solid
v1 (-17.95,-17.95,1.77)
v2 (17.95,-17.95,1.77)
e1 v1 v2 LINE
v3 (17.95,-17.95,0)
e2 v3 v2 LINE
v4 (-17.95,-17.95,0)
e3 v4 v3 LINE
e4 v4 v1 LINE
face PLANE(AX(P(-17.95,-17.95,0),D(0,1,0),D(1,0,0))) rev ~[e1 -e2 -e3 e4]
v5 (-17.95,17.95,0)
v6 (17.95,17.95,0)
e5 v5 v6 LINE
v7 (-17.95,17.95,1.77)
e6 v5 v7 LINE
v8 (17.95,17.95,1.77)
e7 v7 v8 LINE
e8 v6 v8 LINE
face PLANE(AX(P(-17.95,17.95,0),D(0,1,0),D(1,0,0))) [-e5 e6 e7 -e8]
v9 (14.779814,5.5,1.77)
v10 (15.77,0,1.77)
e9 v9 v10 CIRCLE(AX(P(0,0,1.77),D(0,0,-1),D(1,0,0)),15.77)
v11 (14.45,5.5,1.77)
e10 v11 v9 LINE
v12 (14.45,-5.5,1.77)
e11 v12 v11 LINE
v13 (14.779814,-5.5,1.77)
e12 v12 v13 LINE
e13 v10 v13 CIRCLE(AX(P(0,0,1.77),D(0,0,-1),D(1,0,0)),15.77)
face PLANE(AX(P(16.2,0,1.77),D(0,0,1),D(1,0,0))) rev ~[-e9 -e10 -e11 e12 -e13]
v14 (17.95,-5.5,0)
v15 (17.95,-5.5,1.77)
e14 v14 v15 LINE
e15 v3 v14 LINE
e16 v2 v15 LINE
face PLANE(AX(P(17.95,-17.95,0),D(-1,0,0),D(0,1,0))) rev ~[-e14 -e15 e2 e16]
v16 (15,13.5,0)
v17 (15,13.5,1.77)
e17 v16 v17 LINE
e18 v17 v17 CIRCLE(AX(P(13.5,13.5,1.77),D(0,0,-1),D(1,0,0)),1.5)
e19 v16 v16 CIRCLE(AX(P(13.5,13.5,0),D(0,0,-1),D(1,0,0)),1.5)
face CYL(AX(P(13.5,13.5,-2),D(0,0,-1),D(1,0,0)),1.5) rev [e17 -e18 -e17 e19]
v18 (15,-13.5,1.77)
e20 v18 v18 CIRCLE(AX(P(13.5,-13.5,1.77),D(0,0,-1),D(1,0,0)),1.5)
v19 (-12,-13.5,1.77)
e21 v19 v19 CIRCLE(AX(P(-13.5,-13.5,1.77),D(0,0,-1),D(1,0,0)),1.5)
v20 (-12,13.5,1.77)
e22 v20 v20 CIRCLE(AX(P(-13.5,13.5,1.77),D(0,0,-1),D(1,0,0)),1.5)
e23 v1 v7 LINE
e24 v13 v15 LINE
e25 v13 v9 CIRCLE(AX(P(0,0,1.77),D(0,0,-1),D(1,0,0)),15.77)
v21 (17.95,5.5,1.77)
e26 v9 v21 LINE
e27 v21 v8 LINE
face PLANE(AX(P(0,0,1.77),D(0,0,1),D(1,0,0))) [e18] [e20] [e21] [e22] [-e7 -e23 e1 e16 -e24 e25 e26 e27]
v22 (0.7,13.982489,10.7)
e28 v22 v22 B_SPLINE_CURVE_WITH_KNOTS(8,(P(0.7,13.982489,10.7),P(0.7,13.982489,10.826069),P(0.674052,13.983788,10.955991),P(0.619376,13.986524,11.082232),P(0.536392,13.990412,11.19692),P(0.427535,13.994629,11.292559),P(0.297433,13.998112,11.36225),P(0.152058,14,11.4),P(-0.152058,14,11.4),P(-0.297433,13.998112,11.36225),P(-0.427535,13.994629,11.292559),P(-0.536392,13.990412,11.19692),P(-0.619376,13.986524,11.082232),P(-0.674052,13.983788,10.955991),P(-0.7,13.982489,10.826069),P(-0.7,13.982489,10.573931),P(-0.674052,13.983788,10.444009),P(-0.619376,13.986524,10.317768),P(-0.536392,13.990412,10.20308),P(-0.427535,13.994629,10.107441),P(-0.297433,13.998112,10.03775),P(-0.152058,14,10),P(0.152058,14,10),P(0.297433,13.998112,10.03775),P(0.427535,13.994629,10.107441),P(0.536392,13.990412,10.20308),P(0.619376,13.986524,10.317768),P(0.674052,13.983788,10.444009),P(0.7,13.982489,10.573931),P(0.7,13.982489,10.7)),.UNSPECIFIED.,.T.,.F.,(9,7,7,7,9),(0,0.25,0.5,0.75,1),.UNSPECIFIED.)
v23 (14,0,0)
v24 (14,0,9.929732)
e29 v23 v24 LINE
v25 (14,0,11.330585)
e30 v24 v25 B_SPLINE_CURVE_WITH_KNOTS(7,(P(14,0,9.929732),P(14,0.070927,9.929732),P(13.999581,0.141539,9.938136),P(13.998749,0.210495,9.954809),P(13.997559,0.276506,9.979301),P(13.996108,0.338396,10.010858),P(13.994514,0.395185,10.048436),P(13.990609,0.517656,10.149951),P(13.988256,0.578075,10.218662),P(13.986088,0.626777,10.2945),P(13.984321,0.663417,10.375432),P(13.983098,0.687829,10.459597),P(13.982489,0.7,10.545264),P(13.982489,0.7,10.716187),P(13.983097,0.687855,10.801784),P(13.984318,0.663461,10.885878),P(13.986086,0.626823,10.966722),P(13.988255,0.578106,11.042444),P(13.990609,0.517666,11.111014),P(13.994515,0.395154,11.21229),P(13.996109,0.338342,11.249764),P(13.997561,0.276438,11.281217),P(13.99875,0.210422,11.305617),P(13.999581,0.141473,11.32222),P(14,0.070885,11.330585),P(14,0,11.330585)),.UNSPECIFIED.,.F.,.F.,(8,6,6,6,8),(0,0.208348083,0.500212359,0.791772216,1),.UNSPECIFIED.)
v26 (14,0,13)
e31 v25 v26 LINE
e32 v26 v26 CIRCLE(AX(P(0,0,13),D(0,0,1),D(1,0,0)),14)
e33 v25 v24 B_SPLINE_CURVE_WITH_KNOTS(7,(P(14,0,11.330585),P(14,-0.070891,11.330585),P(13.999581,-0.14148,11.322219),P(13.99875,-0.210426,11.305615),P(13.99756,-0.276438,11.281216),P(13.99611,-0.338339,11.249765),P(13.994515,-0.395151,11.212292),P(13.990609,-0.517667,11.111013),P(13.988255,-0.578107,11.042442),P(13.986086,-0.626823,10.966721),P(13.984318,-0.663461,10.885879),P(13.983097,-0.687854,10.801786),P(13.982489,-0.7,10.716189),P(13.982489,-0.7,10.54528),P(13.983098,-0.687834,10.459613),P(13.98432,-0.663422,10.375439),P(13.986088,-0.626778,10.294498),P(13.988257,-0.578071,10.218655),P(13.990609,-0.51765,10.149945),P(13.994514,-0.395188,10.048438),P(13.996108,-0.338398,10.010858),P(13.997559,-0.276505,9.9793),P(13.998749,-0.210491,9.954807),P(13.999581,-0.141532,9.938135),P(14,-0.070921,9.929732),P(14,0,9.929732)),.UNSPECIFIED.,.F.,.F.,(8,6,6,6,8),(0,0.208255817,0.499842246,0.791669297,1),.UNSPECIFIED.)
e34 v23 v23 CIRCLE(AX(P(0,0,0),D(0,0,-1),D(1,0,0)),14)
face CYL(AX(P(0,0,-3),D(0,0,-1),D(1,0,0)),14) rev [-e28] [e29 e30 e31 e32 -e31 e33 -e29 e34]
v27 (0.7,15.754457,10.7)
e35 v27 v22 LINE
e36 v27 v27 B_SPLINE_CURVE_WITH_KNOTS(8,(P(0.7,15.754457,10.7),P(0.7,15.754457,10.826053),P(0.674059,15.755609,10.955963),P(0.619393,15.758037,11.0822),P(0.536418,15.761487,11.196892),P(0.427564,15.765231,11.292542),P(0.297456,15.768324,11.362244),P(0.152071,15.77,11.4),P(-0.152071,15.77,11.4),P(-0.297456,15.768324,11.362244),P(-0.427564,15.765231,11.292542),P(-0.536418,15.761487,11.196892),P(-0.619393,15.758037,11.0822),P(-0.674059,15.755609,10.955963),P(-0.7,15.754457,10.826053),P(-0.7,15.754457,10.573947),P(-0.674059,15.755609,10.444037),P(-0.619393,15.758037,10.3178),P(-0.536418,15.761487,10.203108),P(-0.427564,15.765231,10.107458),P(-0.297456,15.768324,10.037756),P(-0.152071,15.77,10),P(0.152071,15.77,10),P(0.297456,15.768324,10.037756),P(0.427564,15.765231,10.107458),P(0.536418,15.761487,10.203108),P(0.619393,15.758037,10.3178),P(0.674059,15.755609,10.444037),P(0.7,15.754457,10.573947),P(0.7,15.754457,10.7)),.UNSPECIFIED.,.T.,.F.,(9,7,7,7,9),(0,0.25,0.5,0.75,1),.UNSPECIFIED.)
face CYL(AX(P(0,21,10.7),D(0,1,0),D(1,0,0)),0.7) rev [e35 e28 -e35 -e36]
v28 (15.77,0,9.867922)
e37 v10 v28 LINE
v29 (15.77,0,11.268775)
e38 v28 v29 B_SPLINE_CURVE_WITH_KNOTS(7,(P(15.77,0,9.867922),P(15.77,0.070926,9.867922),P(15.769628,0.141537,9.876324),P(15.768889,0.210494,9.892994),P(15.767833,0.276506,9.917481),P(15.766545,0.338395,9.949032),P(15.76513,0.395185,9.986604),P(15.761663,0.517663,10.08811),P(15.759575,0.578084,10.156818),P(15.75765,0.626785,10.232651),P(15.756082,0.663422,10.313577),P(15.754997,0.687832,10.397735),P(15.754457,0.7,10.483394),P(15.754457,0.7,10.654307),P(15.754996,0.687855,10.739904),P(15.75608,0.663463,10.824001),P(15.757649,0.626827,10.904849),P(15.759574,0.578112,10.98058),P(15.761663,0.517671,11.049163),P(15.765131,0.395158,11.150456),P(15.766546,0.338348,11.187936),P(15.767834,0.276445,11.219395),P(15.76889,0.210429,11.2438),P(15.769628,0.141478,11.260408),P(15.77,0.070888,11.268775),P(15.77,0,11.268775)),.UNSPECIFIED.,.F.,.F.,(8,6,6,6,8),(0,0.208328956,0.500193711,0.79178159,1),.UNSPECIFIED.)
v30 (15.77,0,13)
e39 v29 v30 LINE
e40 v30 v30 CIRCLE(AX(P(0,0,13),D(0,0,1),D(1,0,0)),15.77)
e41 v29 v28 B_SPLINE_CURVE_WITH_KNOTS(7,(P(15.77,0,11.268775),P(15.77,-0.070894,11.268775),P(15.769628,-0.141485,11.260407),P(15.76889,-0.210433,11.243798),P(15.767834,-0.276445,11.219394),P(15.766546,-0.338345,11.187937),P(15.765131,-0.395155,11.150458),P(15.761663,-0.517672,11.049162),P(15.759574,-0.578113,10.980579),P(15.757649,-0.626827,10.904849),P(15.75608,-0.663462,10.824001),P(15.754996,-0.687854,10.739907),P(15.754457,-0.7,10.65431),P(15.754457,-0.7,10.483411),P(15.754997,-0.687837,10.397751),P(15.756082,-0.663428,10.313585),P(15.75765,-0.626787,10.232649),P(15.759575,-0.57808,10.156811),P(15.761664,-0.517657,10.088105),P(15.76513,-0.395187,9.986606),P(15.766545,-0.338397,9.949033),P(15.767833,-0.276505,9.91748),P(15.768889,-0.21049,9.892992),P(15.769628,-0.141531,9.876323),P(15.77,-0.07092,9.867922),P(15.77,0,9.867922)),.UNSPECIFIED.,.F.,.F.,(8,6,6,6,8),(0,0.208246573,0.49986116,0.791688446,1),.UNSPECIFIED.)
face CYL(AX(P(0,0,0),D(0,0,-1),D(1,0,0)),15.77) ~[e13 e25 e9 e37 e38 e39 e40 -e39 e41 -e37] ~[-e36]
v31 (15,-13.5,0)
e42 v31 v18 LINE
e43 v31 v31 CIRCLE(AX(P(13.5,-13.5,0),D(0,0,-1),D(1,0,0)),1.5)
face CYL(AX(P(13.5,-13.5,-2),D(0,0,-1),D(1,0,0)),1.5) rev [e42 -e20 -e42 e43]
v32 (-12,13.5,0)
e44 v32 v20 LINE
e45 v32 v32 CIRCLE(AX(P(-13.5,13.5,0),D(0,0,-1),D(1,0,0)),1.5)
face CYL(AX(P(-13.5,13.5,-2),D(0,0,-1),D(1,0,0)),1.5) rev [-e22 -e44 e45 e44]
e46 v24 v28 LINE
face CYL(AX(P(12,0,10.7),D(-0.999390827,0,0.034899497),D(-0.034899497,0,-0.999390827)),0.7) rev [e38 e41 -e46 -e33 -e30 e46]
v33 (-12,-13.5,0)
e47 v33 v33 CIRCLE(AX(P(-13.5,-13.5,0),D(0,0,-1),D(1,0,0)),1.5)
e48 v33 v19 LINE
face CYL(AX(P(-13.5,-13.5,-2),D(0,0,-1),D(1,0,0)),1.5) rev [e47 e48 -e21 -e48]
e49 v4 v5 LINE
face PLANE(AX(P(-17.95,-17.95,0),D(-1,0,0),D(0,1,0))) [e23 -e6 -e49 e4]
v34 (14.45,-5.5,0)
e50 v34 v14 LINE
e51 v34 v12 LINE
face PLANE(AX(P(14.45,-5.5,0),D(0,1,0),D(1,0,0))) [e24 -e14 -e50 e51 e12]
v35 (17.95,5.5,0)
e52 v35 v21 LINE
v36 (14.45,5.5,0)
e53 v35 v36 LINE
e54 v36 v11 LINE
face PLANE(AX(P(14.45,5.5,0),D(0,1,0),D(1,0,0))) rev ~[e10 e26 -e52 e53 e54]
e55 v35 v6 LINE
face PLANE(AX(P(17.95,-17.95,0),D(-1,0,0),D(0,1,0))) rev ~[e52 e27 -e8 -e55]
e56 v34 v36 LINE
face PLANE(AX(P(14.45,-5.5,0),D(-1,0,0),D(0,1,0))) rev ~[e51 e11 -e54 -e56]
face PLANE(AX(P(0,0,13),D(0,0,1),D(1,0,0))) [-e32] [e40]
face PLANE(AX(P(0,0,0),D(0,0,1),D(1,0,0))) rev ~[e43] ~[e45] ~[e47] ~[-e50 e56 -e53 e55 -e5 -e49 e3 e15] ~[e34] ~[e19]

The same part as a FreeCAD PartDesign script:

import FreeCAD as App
import Part
import Sketcher
Q = App.Units.Quantity


def faces_at(feature, points):
    """Names of the faces that lie closest to the given points."""
    faces = feature.Shape.Faces
    near = lambda p: min(range(len(faces)), key=lambda i: faces[i].distToShape(Part.Vertex(*p))[0])
    return sorted({f"Face{near(p) + 1}" for p in points})

doc = App.newDocument("Part")
body = doc.addObject("PartDesign::Body", "Body")

sketch1 = body.newObject("Sketcher::SketchObject", "Sketch")
sketch1.AttachmentSupport = (doc.getObject("XY_Plane"), [""])
sketch1.MapMode = "FlatFace"
sketch1.addGeometry(Part.LineSegment(App.Vector(14.4, 5.5, 0), App.Vector(14.4, -5.5, 0)), False)
sketch1.addGeometry(Part.LineSegment(App.Vector(14.4, -5.5, 0), App.Vector(17.9, -5.5, 0)), False)
sketch1.addGeometry(Part.LineSegment(App.Vector(17.9, -5.5, 0), App.Vector(17.9, 5.5, 0)), False)
sketch1.addGeometry(Part.LineSegment(App.Vector(17.9, 5.5, 0), App.Vector(14.4, 5.5, 0)), False)
sketch1.addConstraint(Sketcher.Constraint("Coincident", 0, 2, 1, 1))
sketch1.addConstraint(Sketcher.Constraint("Coincident", 1, 2, 2, 1))
sketch1.addConstraint(Sketcher.Constraint("Coincident", 2, 2, 3, 1))
sketch1.addConstraint(Sketcher.Constraint("Coincident", 3, 2, 0, 1))
sketch1.addConstraint(Sketcher.Constraint("Vertical", 0))
sketch1.addConstraint(Sketcher.Constraint("Horizontal", 1))
sketch1.addConstraint(Sketcher.Constraint("Vertical", 2))
sketch1.addConstraint(Sketcher.Constraint("Horizontal", 3))
sketch1.addConstraint(Sketcher.Constraint("DistanceY", 0, 2, 0, 1, Q("11 mm")))
sketch1.addConstraint(Sketcher.Constraint("DistanceX", 1, 1, 1, 2, Q("3.5 mm")))
sketch1.addConstraint(Sketcher.Constraint("DistanceY", 0, 2, -1, 1, Q("5.5 mm")))
sketch1.addConstraint(Sketcher.Constraint("DistanceX", -1, 1, 0, 2, Q("14.45 mm")))
pad1 = body.newObject("PartDesign::Pad", "Pad")
pad1.Profile = sketch1
pad1.Length = 1.77
body2 = doc.addObject("PartDesign::Body", "Body001")

sketch2 = body2.newObject("Sketcher::SketchObject", "Sketch001")
sketch2.AttachmentSupport = (doc.getObject("XY_Plane001"), [""])
sketch2.MapMode = "FlatFace"
sketch2.addGeometry(Part.Circle(App.Vector(0, 0, 0), App.Vector(0, 0, 1), 0.7), False)
sketch2.addConstraint(Sketcher.Constraint("Coincident", 0, 3, -1, 1))
sketch2.addConstraint(Sketcher.Constraint("Diameter", 0, Q("1.4 mm")))
pad2 = body2.newObject("PartDesign::Pad", "Pad001")
pad2.Profile = sketch2
pad2.Length = 10
body3 = doc.addObject("PartDesign::Body", "Body002")
doc.recompute()

body2.Placement = App.Placement(App.Vector(12, 0, 10.7), App.Rotation(App.Vector(0, 1, 0), 92))
boolean = body3.newObject("PartDesign::Boolean", "Boolean")
boolean.Type = "Fuse"
boolean.addObjects([body2])
body4 = doc.addObject("PartDesign::Body", "Body003")

sketch3 = body4.newObject("Sketcher::SketchObject", "Sketch002")
sketch3.AttachmentSupport = (doc.getObject("XY_Plane003"), [""])
sketch3.MapMode = "FlatFace"
sketch3.addGeometry(Part.Circle(App.Vector(0, 0, 0), App.Vector(0, 0, 1), 0.7), False)
sketch3.addConstraint(Sketcher.Constraint("Coincident", 0, 3, -1, 1))
sketch3.addConstraint(Sketcher.Constraint("Diameter", 0, Q("1.4 mm")))
pad3 = body4.newObject("PartDesign::Pad", "Pad002")
pad3.Profile = sketch3
pad3.Length = 10
body5 = doc.addObject("PartDesign::Body", "Body004")
doc.recompute()

body4.Placement = App.Placement(App.Vector(0, 0, 0), App.Rotation(App.Vector(1, 0, 0), 90))
boolean2 = body5.newObject("PartDesign::Boolean", "Boolean001")
boolean2.Type = "Fuse"
boolean2.addObjects([body4])
body6 = doc.addObject("PartDesign::Body", "Body005")
doc.recompute()

body5.Placement = App.Placement(App.Vector(0, 21, 10.7), App.Rotation(App.Vector(0, 0, 1), 0))
boolean3 = body6.newObject("PartDesign::Boolean", "Boolean002")
boolean3.Type = "Fuse"
boolean3.addObjects([body5])
body7 = doc.addObject("PartDesign::Body", "Body006")

sketch4 = body7.newObject("Sketcher::SketchObject", "Sketch003")
sketch4.AttachmentSupport = (doc.getObject("XY_Plane006"), [""])
sketch4.MapMode = "FlatFace"
sketch4.addGeometry(Part.Circle(App.Vector(0, 0, 0), App.Vector(0, 0, 1), 14), False)
sketch4.addConstraint(Sketcher.Constraint("Coincident", 0, 3, -1, 1))
sketch4.addConstraint(Sketcher.Constraint("Diameter", 0, Q("28 mm")))
pad4 = body7.newObject("PartDesign::Pad", "Pad003")
pad4.Profile = sketch4
pad4.Length = 13
doc.recompute()

thickness = body7.newObject("PartDesign::Thickness", "Thickness")
thickness.Base = (pad4, faces_at(pad4, [(0, 0, 13), (0, 0, 0)]))
thickness.Value = 1.77
thickness.Reversed = False
thickness.Join = "Arc"
doc.recompute()

boolean4 = body7.newObject("PartDesign::Boolean", "Boolean003")
boolean4.Type = "Cut"
boolean4.addObjects([body6])
doc.recompute()

boolean5 = body7.newObject("PartDesign::Boolean", "Boolean004")
boolean5.Type = "Cut"
boolean5.addObjects([body3])
doc.recompute()

body8 = doc.addObject("PartDesign::Body", "Body007")
body8.BaseFeature = body
boolean6 = body7.newObject("PartDesign::Boolean", "Boolean005")
boolean6.Type = "Cut"
boolean6.addObjects([body8])
doc.recompute()
body9 = doc.addObject("PartDesign::Body", "Body008")

sketch5 = body9.newObject("Sketcher::SketchObject", "Sketch004")
sketch5.AttachmentSupport = (doc.getObject("XY_Plane008"), [""])
sketch5.MapMode = "FlatFace"
sketch5.AttachmentOffset = App.Placement(App.Vector(0, 0, -2), App.Rotation())
sketch5.addGeometry(Part.Circle(App.Vector(13.5, 13.5, 0), App.Vector(0, 0, 1), 1.5), False)
sketch5.addConstraint(Sketcher.Constraint("Diameter", 0, Q("3 mm")))
sketch5.addConstraint(Sketcher.Constraint("DistanceX", -1, 1, 0, 3, Q("13.5 mm")))
sketch5.addConstraint(Sketcher.Constraint("DistanceY", -1, 1, 0, 3, Q("13.5 mm")))
pad5 = body9.newObject("PartDesign::Pad", "Pad004")
pad5.Profile = sketch5
pad5.Length = 10
body10 = doc.addObject("PartDesign::Body", "Body009")

sketch6 = body10.newObject("Sketcher::SketchObject", "Sketch005")
sketch6.AttachmentSupport = (doc.getObject("XY_Plane009"), [""])
sketch6.MapMode = "FlatFace"
sketch6.AttachmentOffset = App.Placement(App.Vector(0, 0, -2), App.Rotation())
sketch6.addGeometry(Part.Circle(App.Vector(13.5, -13.5, 0), App.Vector(0, 0, 1), 1.5), False)
sketch6.addConstraint(Sketcher.Constraint("Diameter", 0, Q("3 mm")))
sketch6.addConstraint(Sketcher.Constraint("DistanceX", -1, 1, 0, 3, Q("13.5 mm")))
sketch6.addConstraint(Sketcher.Constraint("DistanceY", 0, 3, -1, 1, Q("13.5 mm")))
pad6 = body10.newObject("PartDesign::Pad", "Pad005")
pad6.Profile = sketch6
pad6.Length = 10
body11 = doc.addObject("PartDesign::Body", "Body010")

sketch7 = body11.newObject("Sketcher::SketchObject", "Sketch006")
sketch7.AttachmentSupport = (doc.getObject("XY_Plane010"), [""])
sketch7.MapMode = "FlatFace"
sketch7.AttachmentOffset = App.Placement(App.Vector(0, 0, -2), App.Rotation())
sketch7.addGeometry(Part.Circle(App.Vector(-13.5, 13.5, 0), App.Vector(0, 0, 1), 1.5), False)
sketch7.addConstraint(Sketcher.Constraint("Diameter", 0, Q("3 mm")))
sketch7.addConstraint(Sketcher.Constraint("DistanceX", 0, 3, -1, 1, Q("13.5 mm")))
sketch7.addConstraint(Sketcher.Constraint("DistanceY", -1, 1, 0, 3, Q("13.5 mm")))
pad7 = body11.newObject("PartDesign::Pad", "Pad006")
pad7.Profile = sketch7
pad7.Length = 10
body12 = doc.addObject("PartDesign::Body", "Body011")

sketch8 = body12.newObject("Sketcher::SketchObject", "Sketch007")
sketch8.AttachmentSupport = (doc.getObject("XY_Plane011"), [""])
sketch8.MapMode = "FlatFace"
sketch8.AttachmentOffset = App.Placement(App.Vector(0, 0, -2), App.Rotation())
sketch8.addGeometry(Part.Circle(App.Vector(-13.5, -13.5, 0), App.Vector(0, 0, 1), 1.5), False)
sketch8.addConstraint(Sketcher.Constraint("Diameter", 0, Q("3 mm")))
sketch8.addConstraint(Sketcher.Constraint("DistanceX", 0, 3, -1, 1, Q("13.5 mm")))
sketch8.addConstraint(Sketcher.Constraint("DistanceY", 0, 3, -1, 1, Q("13.5 mm")))
pad8 = body12.newObject("PartDesign::Pad", "Pad007")
pad8.Profile = sketch8
pad8.Length = 10
body13 = doc.addObject("PartDesign::Body", "Body012")

sketch9 = body13.newObject("Sketcher::SketchObject", "Sketch008")
sketch9.AttachmentSupport = (doc.getObject("XY_Plane012"), [""])
sketch9.MapMode = "FlatFace"
sketch9.AttachmentOffset = App.Placement(App.Vector(0, 0, -3), App.Rotation())
sketch9.addGeometry(Part.Circle(App.Vector(0, 0, 0), App.Vector(0, 0, 1), 14), False)
sketch9.addConstraint(Sketcher.Constraint("Coincident", 0, 3, -1, 1))
sketch9.addConstraint(Sketcher.Constraint("Diameter", 0, Q("28 mm")))
pad9 = body13.newObject("PartDesign::Pad", "Pad008")
pad9.Profile = sketch9
pad9.Length = 10
body14 = doc.addObject("PartDesign::Body", "Body013")

sketch10 = body14.newObject("Sketcher::SketchObject", "Sketch009")
sketch10.AttachmentSupport = (doc.getObject("XY_Plane013"), [""])
sketch10.MapMode = "FlatFace"
sketch10.addGeometry(Part.LineSegment(App.Vector(-18, 18, 0), App.Vector(-18, -18, 0)), False)
sketch10.addGeometry(Part.LineSegment(App.Vector(-18, -18, 0), App.Vector(18, -18, 0)), False)
sketch10.addGeometry(Part.LineSegment(App.Vector(18, -18, 0), App.Vector(18, 18, 0)), False)
sketch10.addGeometry(Part.LineSegment(App.Vector(18, 18, 0), App.Vector(-18, 18, 0)), False)
sketch10.addConstraint(Sketcher.Constraint("Coincident", 0, 2, 1, 1))
sketch10.addConstraint(Sketcher.Constraint("Coincident", 1, 2, 2, 1))
sketch10.addConstraint(Sketcher.Constraint("Coincident", 2, 2, 3, 1))
sketch10.addConstraint(Sketcher.Constraint("Coincident", 3, 2, 0, 1))
sketch10.addConstraint(Sketcher.Constraint("Vertical", 0))
sketch10.addConstraint(Sketcher.Constraint("Horizontal", 1))
sketch10.addConstraint(Sketcher.Constraint("Vertical", 2))
sketch10.addConstraint(Sketcher.Constraint("Horizontal", 3))
sketch10.addConstraint(Sketcher.Constraint("Symmetric", 0, 2, 2, 2, -1, 1))
sketch10.addConstraint(Sketcher.Constraint("Equal", 3, 0))
sketch10.addConstraint(Sketcher.Constraint("DistanceX", 1, 1, 1, 2, Q("35.9 mm")))
pad10 = body14.newObject("PartDesign::Pad", "Pad009")
pad10.Profile = sketch10
pad10.Length = 1.77
doc.recompute()

boolean7 = body14.newObject("PartDesign::Boolean", "Boolean006")
boolean7.Type = "Cut"
boolean7.addObjects([body13])
doc.recompute()

boolean8 = body14.newObject("PartDesign::Boolean", "Boolean007")
boolean8.Type = "Cut"
boolean8.addObjects([body12])
doc.recompute()

boolean9 = body14.newObject("PartDesign::Boolean", "Boolean008")
boolean9.Type = "Cut"
boolean9.addObjects([body11])
doc.recompute()

boolean10 = body14.newObject("PartDesign::Boolean", "Boolean009")
boolean10.Type = "Cut"
boolean10.addObjects([body10])
doc.recompute()

boolean11 = body14.newObject("PartDesign::Boolean", "Boolean010")
boolean11.Type = "Cut"
boolean11.addObjects([body9])
doc.recompute()

boolean12 = body14.newObject("PartDesign::Boolean", "Boolean011")
boolean12.Type = "Cut"
boolean12.addObjects([body])
doc.recompute()

boolean13 = body14.newObject("PartDesign::Boolean", "Boolean012")
boolean13.Type = "Fuse"
boolean13.addObjects([body7])

doc.recompute()
